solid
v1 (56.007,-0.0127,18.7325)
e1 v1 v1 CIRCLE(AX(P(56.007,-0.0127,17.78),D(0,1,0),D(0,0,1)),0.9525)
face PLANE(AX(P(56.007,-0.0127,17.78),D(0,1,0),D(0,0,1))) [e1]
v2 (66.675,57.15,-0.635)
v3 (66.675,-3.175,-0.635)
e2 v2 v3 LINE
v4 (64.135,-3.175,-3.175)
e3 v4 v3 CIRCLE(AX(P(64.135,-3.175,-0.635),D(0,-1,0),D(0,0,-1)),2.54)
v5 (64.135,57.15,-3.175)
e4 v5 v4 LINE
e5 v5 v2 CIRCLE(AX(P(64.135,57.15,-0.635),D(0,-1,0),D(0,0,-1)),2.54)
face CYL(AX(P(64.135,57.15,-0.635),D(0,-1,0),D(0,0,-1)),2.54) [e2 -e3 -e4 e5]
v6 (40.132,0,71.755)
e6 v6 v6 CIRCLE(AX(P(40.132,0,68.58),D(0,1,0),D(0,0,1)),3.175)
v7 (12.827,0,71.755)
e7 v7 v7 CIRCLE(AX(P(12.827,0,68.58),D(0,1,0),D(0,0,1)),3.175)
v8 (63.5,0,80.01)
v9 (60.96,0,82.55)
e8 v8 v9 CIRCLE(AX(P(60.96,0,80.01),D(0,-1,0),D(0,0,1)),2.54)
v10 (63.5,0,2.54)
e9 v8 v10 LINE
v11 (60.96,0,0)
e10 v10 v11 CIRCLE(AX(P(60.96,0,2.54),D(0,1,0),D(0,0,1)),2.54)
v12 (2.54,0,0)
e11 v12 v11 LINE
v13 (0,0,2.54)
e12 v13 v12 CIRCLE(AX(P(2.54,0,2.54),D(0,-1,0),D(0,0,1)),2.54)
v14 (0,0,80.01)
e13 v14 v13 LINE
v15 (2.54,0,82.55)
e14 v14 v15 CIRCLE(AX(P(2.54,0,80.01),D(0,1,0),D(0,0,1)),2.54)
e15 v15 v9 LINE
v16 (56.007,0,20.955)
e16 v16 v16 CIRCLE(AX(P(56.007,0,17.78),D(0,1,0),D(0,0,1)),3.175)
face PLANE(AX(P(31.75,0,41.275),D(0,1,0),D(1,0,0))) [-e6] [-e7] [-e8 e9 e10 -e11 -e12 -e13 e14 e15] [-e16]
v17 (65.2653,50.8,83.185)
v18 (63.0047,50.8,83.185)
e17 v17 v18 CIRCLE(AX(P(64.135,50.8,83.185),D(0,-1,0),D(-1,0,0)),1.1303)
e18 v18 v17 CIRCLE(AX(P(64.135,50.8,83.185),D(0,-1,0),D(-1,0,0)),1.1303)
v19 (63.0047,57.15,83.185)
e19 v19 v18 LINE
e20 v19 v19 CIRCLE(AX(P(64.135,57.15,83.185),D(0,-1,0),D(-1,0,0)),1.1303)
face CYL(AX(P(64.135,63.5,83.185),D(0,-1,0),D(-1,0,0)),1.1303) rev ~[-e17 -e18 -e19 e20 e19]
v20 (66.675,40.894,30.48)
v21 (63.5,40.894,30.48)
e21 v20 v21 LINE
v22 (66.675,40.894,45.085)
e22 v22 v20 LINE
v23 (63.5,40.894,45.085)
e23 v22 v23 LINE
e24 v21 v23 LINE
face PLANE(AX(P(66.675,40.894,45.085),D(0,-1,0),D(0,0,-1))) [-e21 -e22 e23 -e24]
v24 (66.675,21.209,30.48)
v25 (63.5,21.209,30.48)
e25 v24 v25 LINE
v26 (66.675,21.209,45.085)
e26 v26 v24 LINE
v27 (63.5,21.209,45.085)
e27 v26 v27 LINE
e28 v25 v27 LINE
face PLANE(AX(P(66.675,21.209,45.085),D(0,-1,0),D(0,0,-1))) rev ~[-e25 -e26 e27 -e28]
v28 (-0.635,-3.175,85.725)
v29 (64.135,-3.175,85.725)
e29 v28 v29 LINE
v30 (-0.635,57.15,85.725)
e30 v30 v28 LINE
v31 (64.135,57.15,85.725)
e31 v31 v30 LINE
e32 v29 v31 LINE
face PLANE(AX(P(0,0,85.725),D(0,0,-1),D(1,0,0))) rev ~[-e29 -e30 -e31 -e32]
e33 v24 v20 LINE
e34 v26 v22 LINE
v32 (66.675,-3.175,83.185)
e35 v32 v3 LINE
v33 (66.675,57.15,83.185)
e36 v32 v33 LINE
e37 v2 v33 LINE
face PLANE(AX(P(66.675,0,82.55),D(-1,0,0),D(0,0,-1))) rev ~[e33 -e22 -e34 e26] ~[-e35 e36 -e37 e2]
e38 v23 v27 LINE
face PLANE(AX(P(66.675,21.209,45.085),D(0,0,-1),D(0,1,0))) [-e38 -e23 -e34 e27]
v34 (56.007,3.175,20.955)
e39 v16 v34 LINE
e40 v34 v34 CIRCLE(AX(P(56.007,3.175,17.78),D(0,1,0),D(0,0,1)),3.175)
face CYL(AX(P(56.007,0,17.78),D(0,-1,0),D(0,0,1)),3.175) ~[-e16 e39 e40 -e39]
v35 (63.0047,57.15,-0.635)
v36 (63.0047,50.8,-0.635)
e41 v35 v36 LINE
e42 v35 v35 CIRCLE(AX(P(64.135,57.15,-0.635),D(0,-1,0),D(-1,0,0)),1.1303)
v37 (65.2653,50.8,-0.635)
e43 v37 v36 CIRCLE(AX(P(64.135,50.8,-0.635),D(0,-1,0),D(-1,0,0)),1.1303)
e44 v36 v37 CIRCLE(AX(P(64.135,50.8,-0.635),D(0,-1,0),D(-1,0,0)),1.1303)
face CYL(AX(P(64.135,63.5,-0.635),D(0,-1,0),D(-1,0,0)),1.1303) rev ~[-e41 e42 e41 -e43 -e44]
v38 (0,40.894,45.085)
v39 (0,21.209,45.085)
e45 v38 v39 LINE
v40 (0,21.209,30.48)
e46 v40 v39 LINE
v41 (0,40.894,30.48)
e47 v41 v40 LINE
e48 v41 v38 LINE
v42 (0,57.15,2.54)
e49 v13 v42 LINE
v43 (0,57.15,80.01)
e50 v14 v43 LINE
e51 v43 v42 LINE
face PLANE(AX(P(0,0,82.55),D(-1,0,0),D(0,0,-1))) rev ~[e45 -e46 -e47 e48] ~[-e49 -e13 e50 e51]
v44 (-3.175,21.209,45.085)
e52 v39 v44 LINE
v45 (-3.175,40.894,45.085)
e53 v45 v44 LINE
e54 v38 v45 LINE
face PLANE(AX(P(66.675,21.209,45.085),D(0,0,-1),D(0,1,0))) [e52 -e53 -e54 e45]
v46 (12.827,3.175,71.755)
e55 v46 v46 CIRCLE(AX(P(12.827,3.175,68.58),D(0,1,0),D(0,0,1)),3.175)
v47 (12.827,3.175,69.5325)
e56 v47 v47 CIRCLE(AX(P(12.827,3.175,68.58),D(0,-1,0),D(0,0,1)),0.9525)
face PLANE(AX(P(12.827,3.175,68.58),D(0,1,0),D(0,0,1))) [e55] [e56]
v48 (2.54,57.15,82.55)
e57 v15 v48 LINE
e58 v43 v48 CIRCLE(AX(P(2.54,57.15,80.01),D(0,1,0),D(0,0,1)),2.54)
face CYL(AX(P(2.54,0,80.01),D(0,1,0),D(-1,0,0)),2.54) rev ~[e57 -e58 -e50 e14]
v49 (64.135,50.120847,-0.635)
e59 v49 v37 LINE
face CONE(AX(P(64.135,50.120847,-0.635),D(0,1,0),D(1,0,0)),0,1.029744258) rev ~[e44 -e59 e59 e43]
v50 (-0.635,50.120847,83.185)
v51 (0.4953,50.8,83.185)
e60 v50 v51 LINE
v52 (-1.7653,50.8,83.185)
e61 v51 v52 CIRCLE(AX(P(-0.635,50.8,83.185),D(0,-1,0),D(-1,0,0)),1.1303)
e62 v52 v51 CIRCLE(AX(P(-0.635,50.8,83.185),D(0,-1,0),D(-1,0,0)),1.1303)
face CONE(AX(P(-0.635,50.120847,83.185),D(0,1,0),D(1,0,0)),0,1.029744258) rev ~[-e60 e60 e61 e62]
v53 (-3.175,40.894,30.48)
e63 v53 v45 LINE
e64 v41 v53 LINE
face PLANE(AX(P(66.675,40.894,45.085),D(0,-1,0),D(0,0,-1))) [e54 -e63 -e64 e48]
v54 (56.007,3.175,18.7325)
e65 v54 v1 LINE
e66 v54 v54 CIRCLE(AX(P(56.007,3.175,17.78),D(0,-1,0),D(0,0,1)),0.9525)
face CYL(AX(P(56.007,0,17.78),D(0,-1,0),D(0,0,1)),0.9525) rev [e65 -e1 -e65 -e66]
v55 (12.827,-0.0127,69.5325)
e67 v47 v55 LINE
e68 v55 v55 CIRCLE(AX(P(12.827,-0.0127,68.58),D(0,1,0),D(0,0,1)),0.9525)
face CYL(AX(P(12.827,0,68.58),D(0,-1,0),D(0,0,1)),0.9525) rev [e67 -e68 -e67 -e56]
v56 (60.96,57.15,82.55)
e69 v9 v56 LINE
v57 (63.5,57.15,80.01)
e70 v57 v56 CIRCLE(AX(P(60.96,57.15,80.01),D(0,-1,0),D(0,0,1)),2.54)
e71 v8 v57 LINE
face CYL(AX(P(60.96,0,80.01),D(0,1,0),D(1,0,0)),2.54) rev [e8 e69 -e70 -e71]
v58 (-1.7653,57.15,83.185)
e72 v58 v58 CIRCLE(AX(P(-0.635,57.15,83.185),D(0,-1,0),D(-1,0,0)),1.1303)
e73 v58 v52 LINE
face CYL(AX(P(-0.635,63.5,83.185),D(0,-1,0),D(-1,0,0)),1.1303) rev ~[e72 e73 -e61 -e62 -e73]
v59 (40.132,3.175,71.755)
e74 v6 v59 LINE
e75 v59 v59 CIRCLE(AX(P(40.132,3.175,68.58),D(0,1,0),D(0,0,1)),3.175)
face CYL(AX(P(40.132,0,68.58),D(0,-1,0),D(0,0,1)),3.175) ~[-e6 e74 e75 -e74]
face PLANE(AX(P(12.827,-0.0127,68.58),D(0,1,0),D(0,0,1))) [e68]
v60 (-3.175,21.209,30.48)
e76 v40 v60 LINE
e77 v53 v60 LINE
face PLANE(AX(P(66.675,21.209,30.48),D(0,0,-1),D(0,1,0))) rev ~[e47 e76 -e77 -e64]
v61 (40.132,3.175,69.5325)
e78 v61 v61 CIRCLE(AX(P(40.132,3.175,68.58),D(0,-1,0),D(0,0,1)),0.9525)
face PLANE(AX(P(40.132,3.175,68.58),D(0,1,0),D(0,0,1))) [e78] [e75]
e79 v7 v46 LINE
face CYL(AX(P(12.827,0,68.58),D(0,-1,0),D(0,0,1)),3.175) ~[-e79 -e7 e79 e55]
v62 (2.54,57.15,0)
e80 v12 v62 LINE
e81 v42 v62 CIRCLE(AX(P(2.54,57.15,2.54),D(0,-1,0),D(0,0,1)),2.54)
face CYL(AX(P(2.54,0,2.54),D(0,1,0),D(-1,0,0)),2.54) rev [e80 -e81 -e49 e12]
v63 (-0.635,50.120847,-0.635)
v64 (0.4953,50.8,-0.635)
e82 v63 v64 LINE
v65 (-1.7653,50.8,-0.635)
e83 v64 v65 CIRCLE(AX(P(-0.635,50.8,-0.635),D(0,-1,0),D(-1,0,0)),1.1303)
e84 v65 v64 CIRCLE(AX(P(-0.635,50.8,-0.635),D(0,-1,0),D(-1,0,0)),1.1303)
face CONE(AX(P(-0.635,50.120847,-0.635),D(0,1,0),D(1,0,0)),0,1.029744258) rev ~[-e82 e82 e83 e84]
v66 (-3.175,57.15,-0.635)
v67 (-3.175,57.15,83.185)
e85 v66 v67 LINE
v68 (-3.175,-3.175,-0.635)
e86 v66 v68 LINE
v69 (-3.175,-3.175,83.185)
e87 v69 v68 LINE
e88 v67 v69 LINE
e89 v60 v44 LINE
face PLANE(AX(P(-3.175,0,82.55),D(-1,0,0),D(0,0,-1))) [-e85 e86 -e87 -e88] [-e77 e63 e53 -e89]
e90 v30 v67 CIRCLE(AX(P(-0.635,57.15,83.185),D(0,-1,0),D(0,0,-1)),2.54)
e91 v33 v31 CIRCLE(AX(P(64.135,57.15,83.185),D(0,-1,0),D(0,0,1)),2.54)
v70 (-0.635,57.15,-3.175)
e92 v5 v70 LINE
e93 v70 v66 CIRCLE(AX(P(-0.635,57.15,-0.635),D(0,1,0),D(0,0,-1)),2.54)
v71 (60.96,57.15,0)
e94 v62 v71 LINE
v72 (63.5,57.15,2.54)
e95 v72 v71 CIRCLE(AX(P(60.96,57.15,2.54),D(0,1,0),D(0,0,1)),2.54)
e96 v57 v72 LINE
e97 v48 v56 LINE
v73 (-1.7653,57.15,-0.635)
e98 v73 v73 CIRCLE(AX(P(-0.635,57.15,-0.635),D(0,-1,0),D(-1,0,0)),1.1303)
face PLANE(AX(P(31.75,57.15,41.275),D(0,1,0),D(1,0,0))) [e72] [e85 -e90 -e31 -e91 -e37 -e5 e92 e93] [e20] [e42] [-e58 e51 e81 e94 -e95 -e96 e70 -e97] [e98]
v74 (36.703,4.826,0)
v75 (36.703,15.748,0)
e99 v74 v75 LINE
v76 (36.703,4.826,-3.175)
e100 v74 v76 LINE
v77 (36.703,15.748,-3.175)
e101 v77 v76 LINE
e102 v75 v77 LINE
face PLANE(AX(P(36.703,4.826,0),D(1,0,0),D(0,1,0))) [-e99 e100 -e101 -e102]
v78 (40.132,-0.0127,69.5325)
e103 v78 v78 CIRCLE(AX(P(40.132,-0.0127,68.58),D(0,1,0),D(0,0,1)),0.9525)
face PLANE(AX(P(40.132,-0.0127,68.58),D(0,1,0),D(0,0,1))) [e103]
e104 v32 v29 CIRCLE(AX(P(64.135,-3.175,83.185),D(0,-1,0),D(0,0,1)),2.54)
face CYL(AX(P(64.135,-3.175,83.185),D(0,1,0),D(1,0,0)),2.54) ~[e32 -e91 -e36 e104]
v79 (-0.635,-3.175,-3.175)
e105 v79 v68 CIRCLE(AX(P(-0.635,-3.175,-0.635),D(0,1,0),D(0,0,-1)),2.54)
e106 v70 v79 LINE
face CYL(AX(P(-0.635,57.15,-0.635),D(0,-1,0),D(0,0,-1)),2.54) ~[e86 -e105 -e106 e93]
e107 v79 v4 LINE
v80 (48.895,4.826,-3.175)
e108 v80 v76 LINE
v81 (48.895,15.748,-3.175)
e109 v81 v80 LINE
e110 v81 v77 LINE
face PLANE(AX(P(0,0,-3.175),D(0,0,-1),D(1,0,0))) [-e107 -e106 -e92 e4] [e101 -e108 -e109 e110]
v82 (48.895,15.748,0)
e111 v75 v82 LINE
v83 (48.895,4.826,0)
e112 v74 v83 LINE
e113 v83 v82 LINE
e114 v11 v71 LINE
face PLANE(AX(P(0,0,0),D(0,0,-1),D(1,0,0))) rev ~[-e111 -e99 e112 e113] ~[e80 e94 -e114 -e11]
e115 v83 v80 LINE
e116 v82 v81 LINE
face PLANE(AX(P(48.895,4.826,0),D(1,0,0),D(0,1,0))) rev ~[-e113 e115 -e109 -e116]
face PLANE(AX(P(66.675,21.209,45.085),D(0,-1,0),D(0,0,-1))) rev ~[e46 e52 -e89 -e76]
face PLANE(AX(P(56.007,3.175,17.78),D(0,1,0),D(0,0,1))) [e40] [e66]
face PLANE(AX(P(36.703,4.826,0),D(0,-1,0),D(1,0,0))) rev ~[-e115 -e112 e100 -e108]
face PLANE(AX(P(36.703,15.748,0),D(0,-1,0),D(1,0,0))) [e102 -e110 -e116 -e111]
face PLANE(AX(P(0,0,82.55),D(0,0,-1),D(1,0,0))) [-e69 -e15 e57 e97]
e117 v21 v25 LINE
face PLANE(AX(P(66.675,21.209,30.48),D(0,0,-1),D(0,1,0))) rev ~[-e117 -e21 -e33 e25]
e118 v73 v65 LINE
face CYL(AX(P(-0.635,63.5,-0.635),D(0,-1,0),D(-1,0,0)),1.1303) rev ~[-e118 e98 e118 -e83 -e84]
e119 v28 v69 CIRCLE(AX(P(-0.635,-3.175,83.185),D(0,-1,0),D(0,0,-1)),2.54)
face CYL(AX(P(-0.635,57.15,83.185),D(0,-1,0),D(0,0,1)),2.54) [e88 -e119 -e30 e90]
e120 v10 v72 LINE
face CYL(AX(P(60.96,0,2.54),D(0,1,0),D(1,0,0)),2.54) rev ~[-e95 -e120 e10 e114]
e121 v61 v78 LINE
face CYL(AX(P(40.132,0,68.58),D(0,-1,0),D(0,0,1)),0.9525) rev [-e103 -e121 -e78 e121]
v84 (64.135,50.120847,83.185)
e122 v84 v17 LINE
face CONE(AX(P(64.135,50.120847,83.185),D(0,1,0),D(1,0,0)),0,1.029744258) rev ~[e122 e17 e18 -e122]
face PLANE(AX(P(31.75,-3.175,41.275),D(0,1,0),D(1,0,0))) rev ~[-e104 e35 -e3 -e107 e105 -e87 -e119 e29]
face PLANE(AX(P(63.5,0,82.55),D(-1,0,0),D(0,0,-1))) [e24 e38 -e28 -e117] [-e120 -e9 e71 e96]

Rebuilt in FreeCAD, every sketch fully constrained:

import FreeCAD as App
import Part
import Sketcher
from FreeCAD import Vector
Q = App.Units.Quantity


def edges_at(feature, points):
    """Names of the edges that pass closest to the given points."""
    edges = feature.Shape.Edges
    near = lambda p: min(range(len(edges)), key=lambda i: edges[i].distToShape(Part.Vertex(*p))[0])
    return sorted({f"Edge{near(p) + 1}" for p in points})


def faces_at(feature, points):
    """Names of the faces that lie closest to the given points."""
    faces = feature.Shape.Faces
    near = lambda p: min(range(len(faces)), key=lambda i: faces[i].distToShape(Part.Vertex(*p))[0])
    return sorted({f"Face{near(p) + 1}" for p in points})

doc = App.newDocument("Part")
body = doc.addObject("PartDesign::Body", "Body")

sketch1 = body.newObject("Sketcher::SketchObject", "Sketch")
sketch1.AttachmentSupport = (doc.getObject("XZ_Plane"), [""])
sketch1.MapMode = "FlatFace"
sketch1.addGeometry([
    Part.LineSegment(Vector(0, 0, 0), Vector(0, 82.55, 0)),
    Part.LineSegment(Vector(0, 82.55, 0), Vector(63.5, 82.55, 0)),
    Part.LineSegment(Vector(63.5, 82.55, 0), Vector(63.5, 0, 0)),
    Part.LineSegment(Vector(63.5, 0, 0), Vector(0, 0, 0)),
], False)
sketch1.addConstraint([
    Sketcher.Constraint("Coincident", 0, 2, 1, 1),
    Sketcher.Constraint("Coincident", 1, 2, 2, 1),
    Sketcher.Constraint("Coincident", 2, 2, 3, 1),
    Sketcher.Constraint("Coincident", 3, 2, 0, 1),
    Sketcher.Constraint("Vertical", 0),
    Sketcher.Constraint("Horizontal", 1),
    Sketcher.Constraint("Vertical", 2),
    Sketcher.Constraint("Horizontal", 3),
    Sketcher.Constraint("Coincident", 3, 2, -1, 1),
    Sketcher.Constraint("DistanceX", 1, 1, 1, 2, Q("2.5 in")),
    Sketcher.Constraint("DistanceY", 0, 1, 0, 2, Q("3.25 in")),
])
pad1 = body.newObject("PartDesign::Pad", "Pad")
pad1.Profile = sketch1
pad1.Length = Q("2.25 in")
pad1.Reversed = True
doc.recompute()

thickness = body.newObject("PartDesign::Thickness", "Thickness")
thickness.Base = (pad1, faces_at(pad1, [(31.75, 57.15, 41.275)]))
thickness.Value = Q("0.125 in")
thickness.Reversed = False
thickness.Join = "Intersection"

sketch2 = body.newObject("Sketcher::SketchObject", "Sketch001")
sketch2.AttachmentSupport = (doc.getObject("XZ_Plane"), [""])
sketch2.MapMode = "FlatFace"
sketch2.addGeometry([
    Part.Circle(Vector(12.827, 68.58, 0), Vector(0, 0, 1), 3.175),
    Part.Circle(Vector(40.132, 68.58, 0), Vector(0, 0, 1), 3.175),
    Part.Circle(Vector(56.007, 17.78, 0), Vector(0, 0, 1), 3.175),
], False)
sketch2.addConstraint([
    Sketcher.Constraint("Equal", 0, 1),
    Sketcher.Constraint("Equal", 1, 2),
    Sketcher.Constraint("Horizontal", 0, 3, 1, 3),
    Sketcher.Constraint("Diameter", 0, Q("0.25 in")),
    Sketcher.Constraint("DistanceY", 2, 3, 1, 3, Q("2 in")),
    Sketcher.Constraint("DistanceY", -1, 1, 0, 3, Q("2.7 in")),
    Sketcher.Constraint("DistanceX", 0, 3, 2, 3, Q("1.7 in")),
    Sketcher.Constraint("DistanceX", -1, 1, 1, 3, Q("1.58 in")),
    Sketcher.Constraint("DistanceX", -1, 1, 0, 3, Q("0.505 in")),
])
pad2 = body.newObject("PartDesign::Pad", "Pad001")
pad2.Profile = sketch2
pad2.Length = Q("0.125 in")
pad2.Reversed = True

sketch3 = body.newObject("Sketcher::SketchObject", "Sketch002")
sketch3.AttachmentSupport = (doc.getObject("XZ_Plane"), [""])
sketch3.MapMode = "FlatFace"
sketch3.addGeometry([
    Part.Circle(Vector(12.827, 68.58, 0), Vector(0, 0, 1), 0.9525),
    Part.Circle(Vector(40.132, 68.58, 0), Vector(0, 0, 1), 0.9525),
    Part.Circle(Vector(56.007, 17.78, 0), Vector(0, 0, 1), 0.9525),
], False)
sketch3.addConstraint([
    Sketcher.Constraint("Equal", 0, 1),
    Sketcher.Constraint("Equal", 1, 2),
    Sketcher.Constraint("Horizontal", 0, 3, 1, 3),
    Sketcher.Constraint("Diameter", 0, Q("0.075 in")),
    Sketcher.Constraint("DistanceY", 2, 3, 1, 3, Q("2 in")),
    Sketcher.Constraint("DistanceY", -1, 1, 0, 3, Q("2.7 in")),
    Sketcher.Constraint("DistanceX", 0, 3, 2, 3, Q("1.7 in")),
    Sketcher.Constraint("DistanceX", -1, 1, 1, 3, Q("1.58 in")),
    Sketcher.Constraint("DistanceX", -1, 1, 0, 3, Q("0.505 in")),
])
pocket1 = body.newObject("PartDesign::Pocket", "Pocket")
pocket1.Profile = sketch3
pocket1.Type = "TwoLengths"
pocket1.Length = Q("0.25 in")
pocket1.Length2 = Q("0.0005 in")
doc.recompute()

fillet = body.newObject("PartDesign::Fillet", "Fillet")
fillet.Base = (pocket1, edges_at(pocket1, [
    (0, 28.575, 0),
    (0, 28.575, 82.55),
    (63.5, 28.575, 82.55),
    (63.5, 28.575, 0),
    (-3.175, 26.988, -3.175),
    (66.675, 26.988, -3.175),
    (66.675, 26.988, 85.725),
    (-3.175, 26.988, 85.725),
]))
fillet.Radius = Q("0.1 in")

sketch4 = body.newObject("Sketcher::SketchObject", "Sketch003")
sketch4.AttachmentSupport = (doc.getObject("XY_Plane"), [""])
sketch4.MapMode = "FlatFace"
sketch4.addGeometry([
    Part.LineSegment(Vector(36.703, 15.748, 0), Vector(36.703, 4.826, 0)),
    Part.LineSegment(Vector(36.703, 4.826, 0), Vector(48.895, 4.826, 0)),
    Part.LineSegment(Vector(48.895, 4.826, 0), Vector(48.895, 15.748, 0)),
    Part.LineSegment(Vector(48.895, 15.748, 0), Vector(36.703, 15.748, 0)),
], False)
sketch4.addConstraint([
    Sketcher.Constraint("Coincident", 0, 2, 1, 1),
    Sketcher.Constraint("Coincident", 1, 2, 2, 1),
    Sketcher.Constraint("Coincident", 2, 2, 3, 1),
    Sketcher.Constraint("Coincident", 3, 2, 0, 1),
    Sketcher.Constraint("Vertical", 0),
    Sketcher.Constraint("Horizontal", 1),
    Sketcher.Constraint("Vertical", 2),
    Sketcher.Constraint("Horizontal", 3),
    Sketcher.Constraint("DistanceX", 1, 1, 1, 2, Q("0.48 in")),
    Sketcher.Constraint("DistanceY", 0, 2, 0, 1, Q("0.43 in")),
    Sketcher.Constraint("DistanceY", -1, 1, 0, 2, Q("0.19 in")),
    Sketcher.Constraint("DistanceX", -1, 1, 0, 2, Q("1.445 in")),
])
pocket2 = body.newObject("PartDesign::Pocket", "Pocket001")
pocket2.Profile = sketch4
pocket2.Type = "ThroughAll"

sketch5 = body.newObject("Sketcher::SketchObject", "Sketch004")
sketch5.AttachmentSupport = (doc.getObject("YZ_Plane"), [""])
sketch5.MapMode = "FlatFace"
sketch5.AttachmentOffset = App.Placement(Vector(0, 0, 2.625 * 25.4), App.Rotation())
sketch5.addGeometry([
    Part.LineSegment(Vector(40.894, 45.085, 0), Vector(21.209, 45.085, 0)),
    Part.LineSegment(Vector(21.209, 45.085, 0), Vector(21.209, 30.48, 0)),
    Part.LineSegment(Vector(21.209, 30.48, 0), Vector(40.894, 30.48, 0)),
    Part.LineSegment(Vector(40.894, 30.48, 0), Vector(40.894, 45.085, 0)),
], False)
sketch5.addConstraint([
    Sketcher.Constraint("Coincident", 0, 2, 1, 1),
    Sketcher.Constraint("Coincident", 1, 2, 2, 1),
    Sketcher.Constraint("Coincident", 2, 2, 3, 1),
    Sketcher.Constraint("Coincident", 3, 2, 0, 1),
    Sketcher.Constraint("Horizontal", 0),
    Sketcher.Constraint("Vertical", 1),
    Sketcher.Constraint("Horizontal", 2),
    Sketcher.Constraint("Vertical", 3),
    Sketcher.Constraint("DistanceY", -1, 1, 1, 2, Q("1.2 in")),
    Sketcher.Constraint("DistanceX", 0, 2, 0, 1, Q("0.775 in")),
    Sketcher.Constraint("DistanceY", 1, 2, 1, 1, Q("0.575 in")),
    Sketcher.Constraint("DistanceX", -1, 1, 2, 2, Q("1.61 in")),
])
pocket3 = body.newObject("PartDesign::Pocket", "Pocket002")
pocket3.Profile = sketch5
pocket3.Type = "ThroughAll"

sketch6 = body.newObject("Sketcher::SketchObject", "Sketch005")
sketch6.AttachmentSupport = (doc.getObject("XZ_Plane"), [""])
sketch6.MapMode = "FlatFace"
sketch6.AttachmentOffset = App.Placement(Vector(0, 0, -2.25 * 25.4), App.Rotation())
sketch6.addGeometry([
    Part.Circle(Vector(64.135, 83.185, 0), Vector(0, 0, 1), 1.1303),
    Part.Circle(Vector(-0.635, 83.185, 0), Vector(0, 0, 1), 1.1303),
    Part.Circle(Vector(-0.635, -0.635, 0), Vector(0, 0, 1), 1.1303),
    Part.Circle(Vector(64.135, -0.635, 0), Vector(0, 0, 1), 1.1303),
], False)
sketch6.addConstraint([
    Sketcher.Constraint("Equal", 0, 1),
    Sketcher.Constraint("Equal", 1, 2),
    Sketcher.Constraint("Equal", 2, 3),
    Sketcher.Constraint("Horizontal", 0, 3, 1, 3),
    Sketcher.Constraint("Horizontal", 2, 3, 3, 3),
    Sketcher.Constraint("Vertical", 1, 3, 2, 3),
    Sketcher.Constraint("Vertical", 0, 3, 3, 3),
    Sketcher.Constraint("Diameter", 0, Q("0.089 in")),
    Sketcher.Constraint("DistanceY", 2, 3, 1, 3, Q("3.3 in")),
    Sketcher.Constraint("DistanceX", 1, 3, 0, 3, Q("2.55 in")),
    Sketcher.Constraint("DistanceX", -1, 1, 0, 3, Q("2.525 in")),
    Sketcher.Constraint("DistanceY", -1, 1, 0, 3, Q("3.275 in")),
])
doc.recompute()
hole = body.newObject("PartDesign::Hole", "Hole")
hole.Profile = sketch6
hole.ThreadType = "None"
hole.Diameter = Q("0.089 in")
hole.DepthType = "Dimension"
hole.Depth = Q("0.25 in")
hole.DrillPoint = "Angled"
hole.DrillPointAngle = 118
hole.Reversed = True

doc.recompute()
